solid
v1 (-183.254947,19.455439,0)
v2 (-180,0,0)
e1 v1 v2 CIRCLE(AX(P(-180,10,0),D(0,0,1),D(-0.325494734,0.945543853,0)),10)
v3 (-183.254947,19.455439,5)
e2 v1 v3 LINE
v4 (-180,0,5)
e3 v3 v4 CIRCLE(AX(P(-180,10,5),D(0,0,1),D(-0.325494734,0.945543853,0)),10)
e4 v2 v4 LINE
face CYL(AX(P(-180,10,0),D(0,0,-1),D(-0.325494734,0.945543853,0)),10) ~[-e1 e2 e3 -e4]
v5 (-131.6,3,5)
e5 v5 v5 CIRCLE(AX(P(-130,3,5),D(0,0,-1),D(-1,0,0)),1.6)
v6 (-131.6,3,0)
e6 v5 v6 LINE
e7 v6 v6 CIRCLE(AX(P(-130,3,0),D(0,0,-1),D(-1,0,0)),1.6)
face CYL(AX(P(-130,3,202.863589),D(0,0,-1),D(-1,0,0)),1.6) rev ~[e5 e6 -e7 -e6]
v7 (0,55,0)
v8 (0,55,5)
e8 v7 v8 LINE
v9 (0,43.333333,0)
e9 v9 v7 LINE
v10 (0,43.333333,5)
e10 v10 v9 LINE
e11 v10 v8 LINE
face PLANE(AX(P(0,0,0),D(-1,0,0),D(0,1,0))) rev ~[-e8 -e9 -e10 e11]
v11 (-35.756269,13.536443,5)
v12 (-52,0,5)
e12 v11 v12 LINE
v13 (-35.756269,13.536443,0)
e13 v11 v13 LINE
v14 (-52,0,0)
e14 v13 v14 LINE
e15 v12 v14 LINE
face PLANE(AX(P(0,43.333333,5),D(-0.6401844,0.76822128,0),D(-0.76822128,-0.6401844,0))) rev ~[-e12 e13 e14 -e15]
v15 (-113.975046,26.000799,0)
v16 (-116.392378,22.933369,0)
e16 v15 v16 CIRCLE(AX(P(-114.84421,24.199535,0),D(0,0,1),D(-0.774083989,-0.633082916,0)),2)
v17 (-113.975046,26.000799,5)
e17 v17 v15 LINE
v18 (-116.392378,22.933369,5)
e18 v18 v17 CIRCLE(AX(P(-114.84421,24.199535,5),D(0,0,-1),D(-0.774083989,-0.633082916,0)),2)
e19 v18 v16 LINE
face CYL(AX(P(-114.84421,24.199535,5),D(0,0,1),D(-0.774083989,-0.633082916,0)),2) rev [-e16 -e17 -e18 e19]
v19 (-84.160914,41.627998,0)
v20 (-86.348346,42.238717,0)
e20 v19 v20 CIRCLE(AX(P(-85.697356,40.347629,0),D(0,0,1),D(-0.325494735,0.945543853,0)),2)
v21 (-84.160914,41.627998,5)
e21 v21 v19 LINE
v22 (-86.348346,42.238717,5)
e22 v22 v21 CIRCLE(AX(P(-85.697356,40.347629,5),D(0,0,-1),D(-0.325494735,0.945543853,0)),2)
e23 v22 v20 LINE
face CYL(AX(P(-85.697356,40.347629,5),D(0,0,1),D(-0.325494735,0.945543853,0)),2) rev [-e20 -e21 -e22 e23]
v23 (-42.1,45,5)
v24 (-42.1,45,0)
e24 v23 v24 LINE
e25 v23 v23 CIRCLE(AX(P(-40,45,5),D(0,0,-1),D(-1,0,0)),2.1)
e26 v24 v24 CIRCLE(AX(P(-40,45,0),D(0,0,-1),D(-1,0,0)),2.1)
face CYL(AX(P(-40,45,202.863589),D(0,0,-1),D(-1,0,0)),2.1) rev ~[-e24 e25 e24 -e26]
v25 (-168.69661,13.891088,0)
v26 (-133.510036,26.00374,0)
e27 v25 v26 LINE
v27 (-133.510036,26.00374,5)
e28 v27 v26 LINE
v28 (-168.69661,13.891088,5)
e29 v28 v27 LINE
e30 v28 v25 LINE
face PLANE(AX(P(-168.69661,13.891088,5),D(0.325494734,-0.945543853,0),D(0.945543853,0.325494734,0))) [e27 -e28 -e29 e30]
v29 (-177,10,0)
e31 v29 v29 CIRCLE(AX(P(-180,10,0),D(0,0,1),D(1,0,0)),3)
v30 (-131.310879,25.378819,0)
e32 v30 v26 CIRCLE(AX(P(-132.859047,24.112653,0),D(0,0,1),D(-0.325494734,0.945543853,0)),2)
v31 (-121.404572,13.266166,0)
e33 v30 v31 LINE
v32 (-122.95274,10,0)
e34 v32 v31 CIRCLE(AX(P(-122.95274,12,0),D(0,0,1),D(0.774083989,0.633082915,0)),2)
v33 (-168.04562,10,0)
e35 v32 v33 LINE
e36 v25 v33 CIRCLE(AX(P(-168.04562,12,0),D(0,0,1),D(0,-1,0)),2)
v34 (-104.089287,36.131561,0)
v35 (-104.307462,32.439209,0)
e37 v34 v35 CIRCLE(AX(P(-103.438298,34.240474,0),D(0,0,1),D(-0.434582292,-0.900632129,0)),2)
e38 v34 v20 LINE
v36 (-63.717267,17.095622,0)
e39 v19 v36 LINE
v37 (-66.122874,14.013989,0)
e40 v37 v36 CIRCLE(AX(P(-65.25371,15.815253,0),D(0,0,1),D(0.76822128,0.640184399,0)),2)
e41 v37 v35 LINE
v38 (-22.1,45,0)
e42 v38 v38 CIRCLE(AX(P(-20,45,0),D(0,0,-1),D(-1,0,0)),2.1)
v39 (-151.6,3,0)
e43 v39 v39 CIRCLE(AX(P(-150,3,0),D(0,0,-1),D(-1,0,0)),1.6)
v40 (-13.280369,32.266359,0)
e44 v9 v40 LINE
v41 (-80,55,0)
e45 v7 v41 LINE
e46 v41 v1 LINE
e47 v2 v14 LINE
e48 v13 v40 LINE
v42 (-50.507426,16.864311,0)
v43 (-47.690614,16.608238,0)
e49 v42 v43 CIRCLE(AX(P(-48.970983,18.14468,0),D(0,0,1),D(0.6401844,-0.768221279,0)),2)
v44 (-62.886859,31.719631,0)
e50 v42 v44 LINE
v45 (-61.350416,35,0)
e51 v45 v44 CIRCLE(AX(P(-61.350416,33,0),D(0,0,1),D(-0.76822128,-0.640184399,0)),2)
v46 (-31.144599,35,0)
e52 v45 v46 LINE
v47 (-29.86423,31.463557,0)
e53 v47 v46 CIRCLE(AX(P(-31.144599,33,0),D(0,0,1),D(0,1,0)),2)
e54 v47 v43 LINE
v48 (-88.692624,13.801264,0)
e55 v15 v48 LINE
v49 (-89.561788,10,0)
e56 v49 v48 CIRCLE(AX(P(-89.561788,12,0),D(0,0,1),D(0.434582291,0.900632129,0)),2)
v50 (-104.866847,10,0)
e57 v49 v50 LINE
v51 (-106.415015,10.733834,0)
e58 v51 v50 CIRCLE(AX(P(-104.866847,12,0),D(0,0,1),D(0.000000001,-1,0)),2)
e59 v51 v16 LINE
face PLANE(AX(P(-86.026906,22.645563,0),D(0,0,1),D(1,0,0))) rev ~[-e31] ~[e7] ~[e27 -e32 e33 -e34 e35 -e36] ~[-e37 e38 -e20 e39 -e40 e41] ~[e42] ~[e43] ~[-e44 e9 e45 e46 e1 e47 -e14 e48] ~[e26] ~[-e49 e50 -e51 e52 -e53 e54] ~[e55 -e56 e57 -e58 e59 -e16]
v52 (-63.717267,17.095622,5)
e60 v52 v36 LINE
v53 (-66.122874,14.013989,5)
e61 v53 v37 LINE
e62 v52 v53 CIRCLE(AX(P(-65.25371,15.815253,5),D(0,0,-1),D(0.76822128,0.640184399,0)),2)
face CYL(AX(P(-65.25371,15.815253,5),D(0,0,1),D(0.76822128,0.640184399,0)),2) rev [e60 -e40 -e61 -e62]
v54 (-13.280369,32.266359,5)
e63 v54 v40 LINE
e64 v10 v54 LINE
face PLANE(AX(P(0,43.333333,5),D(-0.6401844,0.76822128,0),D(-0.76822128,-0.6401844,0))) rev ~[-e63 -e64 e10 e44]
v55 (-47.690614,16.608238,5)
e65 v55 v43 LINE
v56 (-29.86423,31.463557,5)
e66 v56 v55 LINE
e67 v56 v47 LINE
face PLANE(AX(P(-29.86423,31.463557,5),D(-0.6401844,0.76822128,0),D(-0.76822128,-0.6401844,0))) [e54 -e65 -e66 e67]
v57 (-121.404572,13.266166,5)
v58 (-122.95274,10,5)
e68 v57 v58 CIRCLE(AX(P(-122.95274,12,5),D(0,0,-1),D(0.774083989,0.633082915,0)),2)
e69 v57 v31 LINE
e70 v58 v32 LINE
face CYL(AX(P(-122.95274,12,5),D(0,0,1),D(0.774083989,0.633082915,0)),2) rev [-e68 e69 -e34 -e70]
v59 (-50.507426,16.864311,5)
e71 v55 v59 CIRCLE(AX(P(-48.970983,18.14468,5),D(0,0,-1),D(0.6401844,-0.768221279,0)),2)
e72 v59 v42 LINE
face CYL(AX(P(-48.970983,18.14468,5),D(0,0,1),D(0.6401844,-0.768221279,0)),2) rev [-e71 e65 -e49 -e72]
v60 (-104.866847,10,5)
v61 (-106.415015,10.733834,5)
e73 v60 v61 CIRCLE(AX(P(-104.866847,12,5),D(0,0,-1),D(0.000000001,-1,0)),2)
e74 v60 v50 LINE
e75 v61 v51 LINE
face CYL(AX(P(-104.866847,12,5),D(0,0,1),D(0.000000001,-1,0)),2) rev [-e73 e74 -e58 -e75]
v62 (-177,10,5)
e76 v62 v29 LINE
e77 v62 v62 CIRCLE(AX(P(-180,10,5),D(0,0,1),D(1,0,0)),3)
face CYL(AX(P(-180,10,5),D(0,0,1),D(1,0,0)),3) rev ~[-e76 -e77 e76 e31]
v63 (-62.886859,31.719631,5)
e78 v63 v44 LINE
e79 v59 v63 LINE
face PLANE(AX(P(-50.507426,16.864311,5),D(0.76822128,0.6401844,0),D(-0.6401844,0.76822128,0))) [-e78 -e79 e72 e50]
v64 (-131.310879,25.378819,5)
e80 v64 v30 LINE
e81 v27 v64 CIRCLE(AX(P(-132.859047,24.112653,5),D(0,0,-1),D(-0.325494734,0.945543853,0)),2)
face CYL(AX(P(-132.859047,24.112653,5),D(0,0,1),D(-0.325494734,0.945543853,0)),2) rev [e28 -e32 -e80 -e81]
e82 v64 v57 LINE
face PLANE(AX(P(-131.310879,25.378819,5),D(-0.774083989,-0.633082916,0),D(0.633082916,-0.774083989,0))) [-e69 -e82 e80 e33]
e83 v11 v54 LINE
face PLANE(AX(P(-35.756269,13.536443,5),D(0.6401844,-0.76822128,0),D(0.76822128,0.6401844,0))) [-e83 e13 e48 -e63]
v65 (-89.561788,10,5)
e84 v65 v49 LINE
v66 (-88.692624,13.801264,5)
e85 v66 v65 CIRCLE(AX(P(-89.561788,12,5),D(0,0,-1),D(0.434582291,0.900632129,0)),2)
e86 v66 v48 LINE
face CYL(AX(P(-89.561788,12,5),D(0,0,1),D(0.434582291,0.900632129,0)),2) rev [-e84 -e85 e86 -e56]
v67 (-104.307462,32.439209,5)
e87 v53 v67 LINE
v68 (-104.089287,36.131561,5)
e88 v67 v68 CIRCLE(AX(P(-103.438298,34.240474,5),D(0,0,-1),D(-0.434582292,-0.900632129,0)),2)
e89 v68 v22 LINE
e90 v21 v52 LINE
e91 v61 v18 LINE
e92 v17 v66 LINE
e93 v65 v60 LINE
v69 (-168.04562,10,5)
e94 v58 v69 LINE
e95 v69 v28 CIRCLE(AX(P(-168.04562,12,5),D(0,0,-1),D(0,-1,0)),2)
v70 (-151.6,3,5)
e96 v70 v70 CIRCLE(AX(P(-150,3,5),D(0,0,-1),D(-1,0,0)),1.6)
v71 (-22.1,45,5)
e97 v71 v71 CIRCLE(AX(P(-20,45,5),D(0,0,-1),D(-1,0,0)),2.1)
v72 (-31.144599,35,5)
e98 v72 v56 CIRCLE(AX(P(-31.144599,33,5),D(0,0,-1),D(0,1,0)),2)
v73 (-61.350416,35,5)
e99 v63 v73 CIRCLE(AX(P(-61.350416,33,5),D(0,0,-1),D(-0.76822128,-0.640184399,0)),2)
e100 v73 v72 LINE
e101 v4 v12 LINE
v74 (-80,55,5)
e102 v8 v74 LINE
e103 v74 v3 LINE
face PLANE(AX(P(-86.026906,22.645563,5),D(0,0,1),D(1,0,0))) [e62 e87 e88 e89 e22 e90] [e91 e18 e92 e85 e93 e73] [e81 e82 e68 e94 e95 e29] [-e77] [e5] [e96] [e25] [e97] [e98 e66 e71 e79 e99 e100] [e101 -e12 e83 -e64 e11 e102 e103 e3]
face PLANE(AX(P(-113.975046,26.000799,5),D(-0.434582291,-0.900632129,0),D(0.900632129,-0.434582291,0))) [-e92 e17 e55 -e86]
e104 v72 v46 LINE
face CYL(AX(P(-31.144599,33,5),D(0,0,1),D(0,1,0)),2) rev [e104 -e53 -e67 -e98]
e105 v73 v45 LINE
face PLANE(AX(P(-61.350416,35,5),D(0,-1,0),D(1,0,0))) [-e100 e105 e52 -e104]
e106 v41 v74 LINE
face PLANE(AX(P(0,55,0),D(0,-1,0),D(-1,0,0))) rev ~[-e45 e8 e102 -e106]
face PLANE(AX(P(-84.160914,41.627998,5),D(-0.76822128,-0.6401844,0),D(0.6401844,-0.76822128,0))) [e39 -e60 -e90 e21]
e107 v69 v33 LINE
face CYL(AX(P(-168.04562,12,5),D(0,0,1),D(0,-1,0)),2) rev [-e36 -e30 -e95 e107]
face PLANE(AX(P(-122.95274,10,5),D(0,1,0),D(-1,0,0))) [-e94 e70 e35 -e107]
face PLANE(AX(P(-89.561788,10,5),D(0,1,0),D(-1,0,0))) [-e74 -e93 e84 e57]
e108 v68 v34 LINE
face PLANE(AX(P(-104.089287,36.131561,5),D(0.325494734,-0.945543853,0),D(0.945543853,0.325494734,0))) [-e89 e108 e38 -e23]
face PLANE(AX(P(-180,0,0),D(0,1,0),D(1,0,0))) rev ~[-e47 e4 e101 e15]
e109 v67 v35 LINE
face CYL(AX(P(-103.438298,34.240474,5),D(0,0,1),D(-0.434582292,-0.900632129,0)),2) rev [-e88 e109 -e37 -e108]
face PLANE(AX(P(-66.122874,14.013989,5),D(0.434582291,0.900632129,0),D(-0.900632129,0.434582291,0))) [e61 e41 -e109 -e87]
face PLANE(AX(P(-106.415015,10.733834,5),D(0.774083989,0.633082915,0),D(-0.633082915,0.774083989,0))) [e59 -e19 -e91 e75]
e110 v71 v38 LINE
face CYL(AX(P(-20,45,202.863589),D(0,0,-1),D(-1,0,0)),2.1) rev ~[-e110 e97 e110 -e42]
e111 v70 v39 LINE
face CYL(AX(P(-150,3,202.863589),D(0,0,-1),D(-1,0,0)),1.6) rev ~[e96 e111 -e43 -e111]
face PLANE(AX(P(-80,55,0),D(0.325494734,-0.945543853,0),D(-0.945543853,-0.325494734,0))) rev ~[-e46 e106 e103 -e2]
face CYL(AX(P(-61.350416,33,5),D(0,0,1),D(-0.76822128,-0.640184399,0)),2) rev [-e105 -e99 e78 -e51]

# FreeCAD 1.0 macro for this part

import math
import FreeCAD as App
import Part
import Sketcher


def add_polygon(sketch, points):
    """Adds a closed chain of lines whose ends are joined by coincident constraints."""
    first, n = sketch.GeometryCount, len(points)
    for a, b in zip(points, points[1:] + points[:1]):
        sketch.addGeometry(Part.LineSegment(App.Vector(*a, 0), App.Vector(*b, 0)), False)
    for i in range(n):
        sketch.addConstraint(Sketcher.Constraint("Coincident", first + i, 2, first + (i + 1) % n, 1))

doc = App.newDocument("Part")
body = doc.addObject("PartDesign::Body", "Body")

# Sketch on XY plane
sketch1 = body.newObject("Sketcher::SketchObject", "Sketch")
sketch1.AttachmentSupport = (doc.getObject("XY_Plane"), [""])
sketch1.MapMode = "FlatFace"
sketch1.addGeometry([
    Part.LineSegment(App.Vector(0, 0, 0), App.Vector(0, 55, 0)),  # 0
    Part.LineSegment(App.Vector(0, 55, 0), App.Vector(-80, 55, 0)),  # 1
    Part.LineSegment(App.Vector(-80, 55, 0), App.Vector(-183, 19, 0)),  # 2
    Part.ArcOfCircle(Part.Circle(App.Vector(-180, 10, 0), App.Vector(0, 0, 1), 10), math.radians(109), math.radians(270)),  # 3
    Part.LineSegment(App.Vector(-180, 0, 0), App.Vector(0, 0, 0)),  # 4
], False)
sketch1.addConstraint([
    Sketcher.Constraint("Coincident", 0, 2, 1, 1),
    Sketcher.Constraint("Coincident", 1, 2, 2, 1),
    Sketcher.Constraint("Tangent", 2, 2, 3, 1),
    Sketcher.Constraint("Tangent", 3, 2, 4, 1),
    Sketcher.Constraint("Coincident", 4, 2, 0, 1),
    Sketcher.Constraint("Vertical", 0),
    Sketcher.Constraint("Horizontal", 1),
    Sketcher.Constraint("Horizontal", 4),
    Sketcher.Constraint("Coincident", 4, 2, -1, 1),
    Sketcher.Constraint("Radius", 3, 10.0),
    Sketcher.Constraint("DistanceX", 1, 2, 1, 1, 80.0),
    Sketcher.Constraint("DistanceX", 4, 1, 4, 2, 180.0),
    Sketcher.Constraint("DistanceY", 0, 1, 0, 2, 55.0),
])
pad1 = body.newObject("PartDesign::Pad", "Pad")
pad1.Profile = sketch1
pad1.Length = 5

# Sketch on XY plane
sketch2 = body.newObject("Sketcher::SketchObject", "Sketch001")
sketch2.AttachmentSupport = (doc.getObject("XY_Plane"), [""])
sketch2.MapMode = "FlatFace"
sketch2.AttachmentOffset = App.Placement(App.Vector(0, 0, 5), App.Rotation())
sketch2.addGeometry(Part.Circle(App.Vector(-180, 10, 0), App.Vector(0, 0, 1), 3), False)
sketch2.addConstraint([
    Sketcher.Constraint("Diameter", 0, 6.0),
    Sketcher.Constraint("DistanceX", 0, 3, -1, 1, 180.0),
    Sketcher.Constraint("DistanceY", -1, 1, 0, 3, 10.0),
])
pocket1 = body.newObject("PartDesign::Pocket", "Pocket")
pocket1.Profile = sketch2
pocket1.Type = "ThroughAll"

# Sketch on XY plane
sketch3 = body.newObject("Sketcher::SketchObject", "Sketch002")
sketch3.AttachmentSupport = (doc.getObject("XY_Plane"), [""])
sketch3.MapMode = "FlatFace"
sketch3.AttachmentOffset = App.Placement(App.Vector(0, 0, 5), App.Rotation())
sketch3.addGeometry([
    Part.LineSegment(App.Vector(-88.7, 13.8, 0), App.Vector(-114, 26, 0)),  # 0
    Part.ArcOfCircle(Part.Circle(App.Vector(-114.8, 24.2, 0), App.Vector(0, 0, 1), 2), math.radians(64), math.radians(219)),  # 1
    Part.LineSegment(App.Vector(-116.4, 22.9, 0), App.Vector(-106.4, 10.7, 0)),  # 2
    Part.ArcOfCircle(Part.Circle(App.Vector(-104.9, 12, 0), App.Vector(0, 0, 1), 2), math.radians(-141), math.radians(-90)),  # 3
    Part.LineSegment(App.Vector(-104.9, 10, 0), App.Vector(-89.6, 10, 0)),  # 4
    Part.ArcOfCircle(Part.Circle(App.Vector(-89.6, 12, 0), App.Vector(0, 0, 1), 2), math.radians(-90), math.radians(64)),  # 5
    Part.LineSegment(App.Vector(-133.5, 26, 0), App.Vector(-168.7, 13.9, 0)),  # 6
    Part.ArcOfCircle(Part.Circle(App.Vector(-168, 12, 0), App.Vector(0, 0, 1), 2), math.radians(109), math.radians(270)),  # 7
    Part.LineSegment(App.Vector(-168, 10, 0), App.Vector(-123, 10, 0)),  # 8
    Part.ArcOfCircle(Part.Circle(App.Vector(-123, 12, 0), App.Vector(0, 0, 1), 2), math.radians(-90), math.radians(39)),  # 9
    Part.LineSegment(App.Vector(-121.4, 13.3, 0), App.Vector(-131.3, 25.4, 0)),  # 10
    Part.ArcOfCircle(Part.Circle(App.Vector(-132.9, 24.1, 0), App.Vector(0, 0, 1), 2), math.radians(39), math.radians(109)),  # 11
    Part.LineSegment(App.Vector(-10, 12, 0), App.Vector(-10, 30.7, 0)),  # 12
    Part.ArcOfCircle(Part.Circle(App.Vector(-12, 30.7, 0), App.Vector(0, 0, 1), 2), math.radians(0), math.radians(130)),  # 13
    Part.LineSegment(App.Vector(-13.3, 32.3, 0), App.Vector(-35.8, 13.5, 0)),  # 14
    Part.ArcOfCircle(Part.Circle(App.Vector(-34.5, 12, 0), App.Vector(0, 0, 1), 2), math.radians(130), math.radians(270)),  # 15
    Part.LineSegment(App.Vector(-34.5, 10, 0), App.Vector(-12, 10, 0)),  # 16
    Part.ArcOfCircle(Part.Circle(App.Vector(-12, 12, 0), App.Vector(0, 0, 1), 2), math.radians(-90), math.radians(0)),  # 17
    Part.LineSegment(App.Vector(-31.1, 35, 0), App.Vector(-61.4, 35, 0)),  # 18
    Part.ArcOfCircle(Part.Circle(App.Vector(-61.4, 33, 0), App.Vector(0, 0, 1), 2), math.radians(90), math.radians(220)),  # 19
    Part.LineSegment(App.Vector(-62.9, 31.7, 0), App.Vector(-50.5, 16.9, 0)),  # 20
    Part.ArcOfCircle(Part.Circle(App.Vector(-49, 18.1, 0), App.Vector(0, 0, 1), 2), math.radians(-140), math.radians(-50)),  # 21
    Part.LineSegment(App.Vector(-47.7, 16.6, 0), App.Vector(-29.9, 31.5, 0)),  # 22
    Part.ArcOfCircle(Part.Circle(App.Vector(-31.1, 33, 0), App.Vector(0, 0, 1), 2), math.radians(-50), math.radians(90)),  # 23
    Part.LineSegment(App.Vector(-63.7, 17.1, 0), App.Vector(-84.2, 41.6, 0)),  # 24
    Part.ArcOfCircle(Part.Circle(App.Vector(-85.7, 40.3, 0), App.Vector(0, 0, 1), 2), math.radians(40), math.radians(109)),  # 25
    Part.LineSegment(App.Vector(-86.3, 42.2, 0), App.Vector(-104.1, 36.1, 0)),  # 26
    Part.ArcOfCircle(Part.Circle(App.Vector(-103.4, 34.2, 0), App.Vector(0, 0, 1), 2), math.radians(109), math.radians(244)),  # 27
    Part.LineSegment(App.Vector(-104.3, 32.4, 0), App.Vector(-66.1, 14, 0)),  # 28
    Part.ArcOfCircle(Part.Circle(App.Vector(-65.3, 15.8, 0), App.Vector(0, 0, 1), 2), math.radians(-116), math.radians(40)),  # 29
], False)
sketch3.addConstraint([
    Sketcher.Constraint("Tangent", 0, 2, 1, 1),
    Sketcher.Constraint("Tangent", 1, 2, 2, 1),
    Sketcher.Constraint("Tangent", 2, 2, 3, 1),
    Sketcher.Constraint("Tangent", 3, 2, 4, 1),
    Sketcher.Constraint("Tangent", 4, 2, 5, 1),
    Sketcher.Constraint("Tangent", 5, 2, 0, 1),
    Sketcher.Constraint("Tangent", 6, 2, 7, 1),
    Sketcher.Constraint("Tangent", 7, 2, 8, 1),
    Sketcher.Constraint("Tangent", 8, 2, 9, 1),
    Sketcher.Constraint("Tangent", 9, 2, 10, 1),
    Sketcher.Constraint("Tangent", 10, 2, 11, 1),
    Sketcher.Constraint("Tangent", 11, 2, 6, 1),
    Sketcher.Constraint("Tangent", 12, 2, 13, 1),
    Sketcher.Constraint("Tangent", 13, 2, 14, 1),
    Sketcher.Constraint("Tangent", 14, 2, 15, 1),
    Sketcher.Constraint("Tangent", 15, 2, 16, 1),
    Sketcher.Constraint("Tangent", 16, 2, 17, 1),
    Sketcher.Constraint("Tangent", 17, 2, 12, 1),
    Sketcher.Constraint("Tangent", 18, 2, 19, 1),
    Sketcher.Constraint("Tangent", 19, 2, 20, 1),
    Sketcher.Constraint("Tangent", 20, 2, 21, 1),
    Sketcher.Constraint("Tangent", 21, 2, 22, 1),
    Sketcher.Constraint("Tangent", 22, 2, 23, 1),
    Sketcher.Constraint("Tangent", 23, 2, 18, 1),
    Sketcher.Constraint("Tangent", 24, 2, 25, 1),
    Sketcher.Constraint("Tangent", 25, 2, 26, 1),
    Sketcher.Constraint("Tangent", 26, 2, 27, 1),
    Sketcher.Constraint("Tangent", 27, 2, 28, 1),
    Sketcher.Constraint("Tangent", 28, 2, 29, 1),
    Sketcher.Constraint("Tangent", 29, 2, 24, 1),
    Sketcher.Constraint("Horizontal", 4),
    Sketcher.Constraint("Horizontal", 8),
    Sketcher.Constraint("Vertical", 12),
    Sketcher.Constraint("Horizontal", 16),
    Sketcher.Constraint("Horizontal", 18),
    Sketcher.Constraint("Equal", 1, 3),
    Sketcher.Constraint("Equal", 3, 5),
    Sketcher.Constraint("Equal", 5, 7),
    Sketcher.Constraint("Equal", 7, 9),
    Sketcher.Constraint("Equal", 9, 11),
    Sketcher.Constraint("Equal", 11, 13),
    Sketcher.Constraint("Equal", 13, 15),
    Sketcher.Constraint("Equal", 15, 17),
    Sketcher.Constraint("Equal", 17, 19),
    Sketcher.Constraint("Equal", 19, 21),
    Sketcher.Constraint("Equal", 21, 23),
    Sketcher.Constraint("Equal", 23, 25),
    Sketcher.Constraint("Equal", 25, 27),
    Sketcher.Constraint("Equal", 27, 29),
    Sketcher.Constraint("Parallel", 2, 10),
    Sketcher.Constraint("Perpendicular", 14, 20),
    Sketcher.Constraint("Perpendicular", 20, 22),
    Sketcher.Constraint("Perpendicular", 22, 24),
    Sketcher.Constraint("Parallel", 6, 26),
    Sketcher.Constraint("Parallel", 0, 28),
    Sketcher.Constraint("Horizontal", 5, 3, 7, 3),
    Sketcher.Constraint("Horizontal", 9, 3, 15, 3),
    Sketcher.Constraint("Radius", 1, 2.0),
    Sketcher.Constraint("DistanceY", -1, 1, 3, 3, 12.0),
    Sketcher.Constraint("DistanceX", 13, 3, -1, 1, 12.0),
    Sketcher.Constraint("DistanceY", -1, 1, 19, 3, 33.0),
    Sketcher.Constraint("DistanceX", 16, 1, 16, 2, 22.4759),
    Sketcher.Constraint("DistanceX", 11, 3, 0, 2, 18.884001),
    Sketcher.Constraint("DistanceX", 4, 1, 4, 2, 15.305059),
    Sketcher.Constraint("DistanceX", 8, 1, 8, 2, 45.09288),
    Sketcher.Constraint("DistanceX", 23, 3, -1, 1, 31.144599),
    Sketcher.Constraint("DistanceY", -1, 1, 0, 2, 26.000799),
    Sketcher.Constraint("DistanceX", 11, 3, 3, 3, 27.9922),
    Sketcher.Constraint("DistanceX", 6, 2, 1, 3, 53.852399),
    Sketcher.Constraint("DistanceY", 22, 2, 13, 2, 0.802802),
    Sketcher.Constraint("Distance", 22, 23.204751),
    Sketcher.Constraint("Distance", 28, 42.397541),
    Sketcher.Constraint("DistanceX", 1, 3, -1, 1, 114.84421),
    Sketcher.Constraint("DistanceY", -1, 1, 25, 3, 40.347629),
    Sketcher.Constraint("DistanceX", 29, 3, -1, 1, 65.25371),
])
pocket2 = body.newObject("PartDesign::Pocket", "Pocket001")
pocket2.Profile = sketch3
pocket2.Type = "ThroughAll"

# Sketch on XY plane
sketch4 = body.newObject("Sketcher::SketchObject", "Sketch003")
sketch4.AttachmentSupport = (doc.getObject("XY_Plane"), [""])
sketch4.MapMode = "FlatFace"
sketch4.AttachmentOffset = App.Placement(App.Vector(0, 0, 5), App.Rotation())
sketch4.addGeometry([
    Part.Circle(App.Vector(-150, 3, 0), App.Vector(0, 0, 1), 1.6),
    Part.Circle(App.Vector(-130, 3, 0), App.Vector(0, 0, 1), 1.6),
], False)
sketch4.addConstraint([
    Sketcher.Constraint("Equal", 0, 1),
    Sketcher.Constraint("Horizontal", 0, 3, 1, 3),
    Sketcher.Constraint("Diameter", 0, 3.2),
    Sketcher.Constraint("DistanceX", 0, 3, -1, 1, 150.0),
    Sketcher.Constraint("DistanceY", -1, 1, 0, 3, 3.0),
    Sketcher.Constraint("DistanceX", 1, 3, -1, 1, 130.0),
])
doc.recompute()
hole = body.newObject("PartDesign::Hole", "Hole")
hole.Profile = sketch4
hole.ThreadType = "None"
hole.Diameter = 3.2
hole.DepthType = "ThroughAll"

# Sketch on XY plane
sketch5 = body.newObject("Sketcher::SketchObject", "Sketch004")
sketch5.AttachmentSupport = (doc.getObject("XY_Plane"), [""])
sketch5.MapMode = "FlatFace"
sketch5.AttachmentOffset = App.Placement(App.Vector(0, 0, 5), App.Rotation())
sketch5.addGeometry([
    Part.Circle(App.Vector(-40, 45, 0), App.Vector(0, 0, 1), 2.1),
    Part.Circle(App.Vector(-20, 45, 0), App.Vector(0, 0, 1), 2.1),
], False)
sketch5.addConstraint([
    Sketcher.Constraint("Equal", 0, 1),
    Sketcher.Constraint("Horizontal", 0, 3, 1, 3),
    Sketcher.Constraint("Diameter", 0, 4.2),
    Sketcher.Constraint("DistanceX", 0, 3, -1, 1, 40.0),
    Sketcher.Constraint("DistanceY", -1, 1, 0, 3, 45.0),
    Sketcher.Constraint("DistanceX", 1, 3, -1, 1, 20.0),
])
doc.recompute()
hole2 = body.newObject("PartDesign::Hole", "Hole001")
hole2.Profile = sketch5
hole2.ThreadType = "None"
hole2.Diameter = 4.2
hole2.DepthType = "ThroughAll"

# Sketch on XY plane
sketch6 = body.newObject("Sketcher::SketchObject", "Sketch005")
sketch6.AttachmentSupport = (doc.getObject("XY_Plane"), [""])
sketch6.MapMode = "FlatFace"
sketch6.AttachmentOffset = App.Placement(App.Vector(0, 0, 5), App.Rotation())
add_polygon(sketch6, [(0, 0), (0, 43), (-52, 0)])  # lines 0-2
sketch6.addConstraint([
    Sketcher.Constraint("Vertical", 0),
    Sketcher.Constraint("Horizontal", 2),
    Sketcher.Constraint("Coincident", 2, 2, -1, 1),
    Sketcher.Constraint("DistanceX", 2, 1, 2, 2, 52.0),
    Sketcher.Constraint("Distance", 1, 67.688831),
])
pocket3 = body.newObject("PartDesign::Pocket", "Pocket002")
pocket3.Profile = sketch6
pocket3.Type = "ThroughAll"

doc.recompute()
